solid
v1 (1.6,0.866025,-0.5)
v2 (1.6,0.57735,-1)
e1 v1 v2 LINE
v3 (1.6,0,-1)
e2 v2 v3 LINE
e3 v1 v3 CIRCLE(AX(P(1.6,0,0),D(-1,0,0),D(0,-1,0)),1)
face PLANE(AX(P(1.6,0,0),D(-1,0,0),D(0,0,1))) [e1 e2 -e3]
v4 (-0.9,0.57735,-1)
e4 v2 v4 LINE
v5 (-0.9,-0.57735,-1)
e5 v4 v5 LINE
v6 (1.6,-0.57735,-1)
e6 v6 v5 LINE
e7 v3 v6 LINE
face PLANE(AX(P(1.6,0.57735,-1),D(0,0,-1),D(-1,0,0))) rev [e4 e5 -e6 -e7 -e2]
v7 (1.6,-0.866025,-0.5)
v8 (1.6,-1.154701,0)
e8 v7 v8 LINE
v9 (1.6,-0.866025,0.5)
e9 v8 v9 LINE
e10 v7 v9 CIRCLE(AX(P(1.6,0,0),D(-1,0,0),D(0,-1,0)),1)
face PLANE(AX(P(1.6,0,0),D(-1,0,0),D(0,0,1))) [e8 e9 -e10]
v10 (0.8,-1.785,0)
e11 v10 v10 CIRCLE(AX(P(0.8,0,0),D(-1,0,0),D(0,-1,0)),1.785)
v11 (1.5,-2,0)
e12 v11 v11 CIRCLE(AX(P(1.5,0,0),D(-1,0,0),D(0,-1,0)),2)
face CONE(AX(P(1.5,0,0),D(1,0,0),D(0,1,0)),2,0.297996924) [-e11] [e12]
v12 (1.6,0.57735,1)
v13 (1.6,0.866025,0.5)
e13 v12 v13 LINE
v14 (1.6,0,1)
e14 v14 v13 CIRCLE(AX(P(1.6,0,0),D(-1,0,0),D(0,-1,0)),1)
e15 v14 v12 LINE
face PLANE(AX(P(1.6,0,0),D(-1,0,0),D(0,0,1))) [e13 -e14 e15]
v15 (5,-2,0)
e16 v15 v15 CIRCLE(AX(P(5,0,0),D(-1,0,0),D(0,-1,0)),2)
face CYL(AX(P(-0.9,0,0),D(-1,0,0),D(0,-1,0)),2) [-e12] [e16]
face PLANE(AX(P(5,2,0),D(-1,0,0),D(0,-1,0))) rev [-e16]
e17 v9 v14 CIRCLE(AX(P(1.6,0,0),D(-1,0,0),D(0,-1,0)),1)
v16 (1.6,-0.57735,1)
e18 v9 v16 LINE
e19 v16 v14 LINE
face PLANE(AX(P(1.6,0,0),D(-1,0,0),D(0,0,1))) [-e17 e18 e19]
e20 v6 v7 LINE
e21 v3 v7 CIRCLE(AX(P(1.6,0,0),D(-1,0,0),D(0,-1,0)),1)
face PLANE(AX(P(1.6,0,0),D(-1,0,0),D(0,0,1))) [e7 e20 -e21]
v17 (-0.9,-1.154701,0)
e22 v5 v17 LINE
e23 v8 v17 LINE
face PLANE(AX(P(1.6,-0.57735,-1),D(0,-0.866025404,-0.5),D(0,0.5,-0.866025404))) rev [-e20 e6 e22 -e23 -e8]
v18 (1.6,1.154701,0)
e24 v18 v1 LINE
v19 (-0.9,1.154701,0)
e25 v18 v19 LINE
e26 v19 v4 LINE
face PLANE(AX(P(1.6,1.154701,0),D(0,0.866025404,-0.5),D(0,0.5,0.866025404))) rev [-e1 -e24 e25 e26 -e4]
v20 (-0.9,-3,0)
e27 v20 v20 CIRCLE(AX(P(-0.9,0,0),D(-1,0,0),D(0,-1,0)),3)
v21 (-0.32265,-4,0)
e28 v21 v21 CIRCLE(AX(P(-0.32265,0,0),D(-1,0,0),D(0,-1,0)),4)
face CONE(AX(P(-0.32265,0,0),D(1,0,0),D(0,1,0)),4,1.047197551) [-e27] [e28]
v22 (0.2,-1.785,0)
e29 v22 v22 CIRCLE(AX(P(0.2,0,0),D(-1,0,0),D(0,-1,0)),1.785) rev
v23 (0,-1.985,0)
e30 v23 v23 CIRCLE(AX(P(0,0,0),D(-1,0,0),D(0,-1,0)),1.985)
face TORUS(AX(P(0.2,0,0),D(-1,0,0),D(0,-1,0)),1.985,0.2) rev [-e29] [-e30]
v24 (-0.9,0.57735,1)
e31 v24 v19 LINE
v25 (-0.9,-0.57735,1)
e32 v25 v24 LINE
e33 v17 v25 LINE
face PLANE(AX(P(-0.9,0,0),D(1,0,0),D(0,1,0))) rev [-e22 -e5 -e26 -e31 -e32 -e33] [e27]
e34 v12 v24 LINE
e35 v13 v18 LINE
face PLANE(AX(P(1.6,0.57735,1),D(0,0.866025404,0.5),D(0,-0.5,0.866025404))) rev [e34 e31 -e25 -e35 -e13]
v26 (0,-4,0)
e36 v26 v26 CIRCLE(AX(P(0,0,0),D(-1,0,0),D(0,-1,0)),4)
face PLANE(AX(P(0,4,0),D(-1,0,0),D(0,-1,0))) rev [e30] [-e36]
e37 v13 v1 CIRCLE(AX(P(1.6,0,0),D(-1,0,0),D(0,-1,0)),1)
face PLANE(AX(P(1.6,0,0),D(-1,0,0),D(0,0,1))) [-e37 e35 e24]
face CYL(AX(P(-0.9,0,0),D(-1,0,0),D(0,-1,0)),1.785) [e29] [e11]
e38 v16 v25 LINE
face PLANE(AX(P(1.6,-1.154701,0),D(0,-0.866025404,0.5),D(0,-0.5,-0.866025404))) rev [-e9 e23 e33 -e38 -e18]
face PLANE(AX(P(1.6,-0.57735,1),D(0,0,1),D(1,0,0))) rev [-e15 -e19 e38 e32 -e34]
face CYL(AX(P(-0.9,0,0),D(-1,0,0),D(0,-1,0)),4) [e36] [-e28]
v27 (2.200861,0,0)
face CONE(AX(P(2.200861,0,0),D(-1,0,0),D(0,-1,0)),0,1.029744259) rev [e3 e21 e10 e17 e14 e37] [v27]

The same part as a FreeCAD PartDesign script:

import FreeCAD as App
import Part
import Sketcher
Q = App.Units.Quantity


def edges_at(feature, points):
    """Names of the edges that pass closest to the given points."""
    edges = feature.Shape.Edges
    near = lambda p: min(range(len(edges)), key=lambda i: edges[i].distToShape(Part.Vertex(*p))[0])
    return sorted({f"Edge{near(p) + 1}" for p in points})

doc = App.newDocument("Part")
body = doc.addObject("PartDesign::Body", "Body")

# Sketch on XY plane
sketch1 = doc.addObject("Sketcher::SketchObject", "Sketch")
body.addObject(sketch1)
sketch1.AttachmentSupport = (doc.XY_Plane, [""])
sketch1.MapMode = "FlatFace"
sketch1.addGeometry([
    Part.LineSegment(App.Vector(-0.9, 3, 0), App.Vector(-0.9, 0, 0)),  # 0
    Part.LineSegment(App.Vector(-0.9, 0, 0), App.Vector(5, 0, 0)),  # 1
    Part.LineSegment(App.Vector(5, 0, 0), App.Vector(5, 2, 0)),  # 2
    Part.LineSegment(App.Vector(5, 2, 0), App.Vector(1.5, 2, 0)),  # 3
    Part.LineSegment(App.Vector(1.5, 2, 0), App.Vector(0.8, 1.78, 0)),  # 4
    Part.LineSegment(App.Vector(0.8, 1.78, 0), App.Vector(0, 1.78, 0)),  # 5
    Part.LineSegment(App.Vector(0, 1.78, 0), App.Vector(0, 4, 0)),  # 6
    Part.LineSegment(App.Vector(0, 4, 0), App.Vector(-0.32, 4, 0)),  # 7
    Part.LineSegment(App.Vector(-0.32, 4, 0), App.Vector(-0.9, 3, 0)),  # 8
], False)
sketch1.addConstraint([
    Sketcher.Constraint("Coincident", 0, 2, 1, 1),
    Sketcher.Constraint("Coincident", 1, 2, 2, 1),
    Sketcher.Constraint("Coincident", 2, 2, 3, 1),
    Sketcher.Constraint("Coincident", 3, 2, 4, 1),
    Sketcher.Constraint("Coincident", 4, 2, 5, 1),
    Sketcher.Constraint("Coincident", 5, 2, 6, 1),
    Sketcher.Constraint("Coincident", 6, 2, 7, 1),
    Sketcher.Constraint("Coincident", 7, 2, 8, 1),
    Sketcher.Constraint("Coincident", 8, 2, 0, 1),
    Sketcher.Constraint("Vertical", 0),
    Sketcher.Constraint("Horizontal", 1),
    Sketcher.Constraint("Vertical", 2),
    Sketcher.Constraint("Horizontal", 3),
    Sketcher.Constraint("Horizontal", 5),
    Sketcher.Constraint("Vertical", 6),
    Sketcher.Constraint("Horizontal", 7),
    Sketcher.Constraint("PointOnObject", 0, 2, -1),
    Sketcher.Constraint("PointOnObject", 5, 2, -2),
    Sketcher.Constraint("DistanceY", 0, 2, 0, 1, 3.0),
    Sketcher.Constraint("DistanceY", 2, 1, 2, 2, 2.0),
    Sketcher.Constraint("Angle", 8, Q("-120 deg")),
    Sketcher.Constraint("DistanceX", 1, 1, 1, 2, 5.9),
    Sketcher.Constraint("DistanceX", 3, 2, 3, 1, 3.5),
    Sketcher.Constraint("DistanceX", 5, 2, 5, 1, 0.8),
    Sketcher.Constraint("DistanceX", -1, 1, 1, 2, 5.0),
    Sketcher.Constraint("DistanceY", -1, 1, 6, 2, 4.0),
    Sketcher.Constraint("DistanceY", 6, 1, 6, 2, 2.215),
])
revolution = doc.addObject("PartDesign::Revolution", "Revolution")
body.addObject(revolution)
revolution.Profile = sketch1
revolution.ReferenceAxis = (sketch1, ["H_Axis"])
revolution.Angle = 360
doc.recompute()

fillet = doc.addObject("PartDesign::Fillet", "Fillet")
body.addObject(fillet)
fillet.Base = (revolution, edges_at(revolution, [(0, 1.785, 0)]))
fillet.Radius = 0.2

# Sketch on YZ plane
sketch2 = doc.addObject("Sketcher::SketchObject", "Sketch001")
body.addObject(sketch2)
sketch2.AttachmentSupport = (doc.YZ_Plane, [""])
sketch2.MapMode = "FlatFace"
sketch2.AttachmentOffset = App.Placement(App.Vector(0, 0, -0.9), App.Rotation())
sketch2.addGeometry([
    Part.LineSegment(App.Vector(1.2, 0, 0), App.Vector(0.6, -1, 0)),  # 0
    Part.LineSegment(App.Vector(0.6, -1, 0), App.Vector(-0.6, -1, 0)),  # 1
    Part.LineSegment(App.Vector(-0.6, -1, 0), App.Vector(-1.2, 0, 0)),  # 2
    Part.LineSegment(App.Vector(-1.2, 0, 0), App.Vector(-0.6, 1, 0)),  # 3
    Part.LineSegment(App.Vector(-0.6, 1, 0), App.Vector(0.6, 1, 0)),  # 4
    Part.LineSegment(App.Vector(0.6, 1, 0), App.Vector(1.2, 0, 0)),  # 5
], False)
sketch2.addConstraint([
    Sketcher.Constraint("Coincident", 0, 2, 1, 1),
    Sketcher.Constraint("Coincident", 1, 2, 2, 1),
    Sketcher.Constraint("Coincident", 2, 2, 3, 1),
    Sketcher.Constraint("Coincident", 3, 2, 4, 1),
    Sketcher.Constraint("Coincident", 4, 2, 5, 1),
    Sketcher.Constraint("Coincident", 5, 2, 0, 1),
    Sketcher.Constraint("Horizontal", 1),
    Sketcher.Constraint("Horizontal", 4),
    Sketcher.Constraint("Symmetric", 0, 2, 3, 2, -1, 1),
    Sketcher.Constraint("Symmetric", 2, 2, 5, 2, -1, 1),
    Sketcher.Constraint("PointOnObject", 2, 2, -1),
    Sketcher.Constraint("Parallel", 2, 5),
    Sketcher.Constraint("Vertical", 1, 2, 3, 2),
    Sketcher.Constraint("Angle", 0, Q("-120 deg")),
    Sketcher.Constraint("DistanceY", 0, 2, -1, 1, 1.0),
    Sketcher.Constraint("DistanceX", 1, 2, 1, 1, 1.154701),
])
pocket1 = doc.addObject("PartDesign::Pocket", "Pocket")
body.addObject(pocket1)
pocket1.Profile = sketch2
pocket1.Length = 2.5
pocket1.Reversed = True

# Sketch on XY plane
sketch3 = doc.addObject("Sketcher::SketchObject", "Sketch002")
body.addObject(sketch3)
sketch3.AttachmentSupport = (doc.XY_Plane, [""])
sketch3.MapMode = "FlatFace"
sketch3.addGeometry([
    Part.LineSegment(App.Vector(1.6, 1, 0), App.Vector(1.6, 0, 0)),
    Part.LineSegment(App.Vector(1.6, 0, 0), App.Vector(2.2, 0, 0)),
    Part.LineSegment(App.Vector(2.2, 0, 0), App.Vector(1.6, 1, 0)),
], False)
sketch3.addConstraint([
    Sketcher.Constraint("Coincident", 0, 2, 1, 1),
    Sketcher.Constraint("Coincident", 1, 2, 2, 1),
    Sketcher.Constraint("Coincident", 2, 2, 0, 1),
    Sketcher.Constraint("Vertical", 0),
    Sketcher.Constraint("Horizontal", 1),
    Sketcher.Constraint("PointOnObject", 0, 2, -1),
    Sketcher.Constraint("DistanceY", 0, 2, 0, 1, 1.0),
    Sketcher.Constraint("Angle", 2, Q("121 deg")),
    Sketcher.Constraint("DistanceX", -1, 1, 0, 2, 1.6),
])
groove = doc.addObject("PartDesign::Groove", "Groove")
body.addObject(groove)
groove.Profile = sketch3
groove.ReferenceAxis = (sketch3, ["H_Axis"])
groove.Angle = 360

doc.recompute()
